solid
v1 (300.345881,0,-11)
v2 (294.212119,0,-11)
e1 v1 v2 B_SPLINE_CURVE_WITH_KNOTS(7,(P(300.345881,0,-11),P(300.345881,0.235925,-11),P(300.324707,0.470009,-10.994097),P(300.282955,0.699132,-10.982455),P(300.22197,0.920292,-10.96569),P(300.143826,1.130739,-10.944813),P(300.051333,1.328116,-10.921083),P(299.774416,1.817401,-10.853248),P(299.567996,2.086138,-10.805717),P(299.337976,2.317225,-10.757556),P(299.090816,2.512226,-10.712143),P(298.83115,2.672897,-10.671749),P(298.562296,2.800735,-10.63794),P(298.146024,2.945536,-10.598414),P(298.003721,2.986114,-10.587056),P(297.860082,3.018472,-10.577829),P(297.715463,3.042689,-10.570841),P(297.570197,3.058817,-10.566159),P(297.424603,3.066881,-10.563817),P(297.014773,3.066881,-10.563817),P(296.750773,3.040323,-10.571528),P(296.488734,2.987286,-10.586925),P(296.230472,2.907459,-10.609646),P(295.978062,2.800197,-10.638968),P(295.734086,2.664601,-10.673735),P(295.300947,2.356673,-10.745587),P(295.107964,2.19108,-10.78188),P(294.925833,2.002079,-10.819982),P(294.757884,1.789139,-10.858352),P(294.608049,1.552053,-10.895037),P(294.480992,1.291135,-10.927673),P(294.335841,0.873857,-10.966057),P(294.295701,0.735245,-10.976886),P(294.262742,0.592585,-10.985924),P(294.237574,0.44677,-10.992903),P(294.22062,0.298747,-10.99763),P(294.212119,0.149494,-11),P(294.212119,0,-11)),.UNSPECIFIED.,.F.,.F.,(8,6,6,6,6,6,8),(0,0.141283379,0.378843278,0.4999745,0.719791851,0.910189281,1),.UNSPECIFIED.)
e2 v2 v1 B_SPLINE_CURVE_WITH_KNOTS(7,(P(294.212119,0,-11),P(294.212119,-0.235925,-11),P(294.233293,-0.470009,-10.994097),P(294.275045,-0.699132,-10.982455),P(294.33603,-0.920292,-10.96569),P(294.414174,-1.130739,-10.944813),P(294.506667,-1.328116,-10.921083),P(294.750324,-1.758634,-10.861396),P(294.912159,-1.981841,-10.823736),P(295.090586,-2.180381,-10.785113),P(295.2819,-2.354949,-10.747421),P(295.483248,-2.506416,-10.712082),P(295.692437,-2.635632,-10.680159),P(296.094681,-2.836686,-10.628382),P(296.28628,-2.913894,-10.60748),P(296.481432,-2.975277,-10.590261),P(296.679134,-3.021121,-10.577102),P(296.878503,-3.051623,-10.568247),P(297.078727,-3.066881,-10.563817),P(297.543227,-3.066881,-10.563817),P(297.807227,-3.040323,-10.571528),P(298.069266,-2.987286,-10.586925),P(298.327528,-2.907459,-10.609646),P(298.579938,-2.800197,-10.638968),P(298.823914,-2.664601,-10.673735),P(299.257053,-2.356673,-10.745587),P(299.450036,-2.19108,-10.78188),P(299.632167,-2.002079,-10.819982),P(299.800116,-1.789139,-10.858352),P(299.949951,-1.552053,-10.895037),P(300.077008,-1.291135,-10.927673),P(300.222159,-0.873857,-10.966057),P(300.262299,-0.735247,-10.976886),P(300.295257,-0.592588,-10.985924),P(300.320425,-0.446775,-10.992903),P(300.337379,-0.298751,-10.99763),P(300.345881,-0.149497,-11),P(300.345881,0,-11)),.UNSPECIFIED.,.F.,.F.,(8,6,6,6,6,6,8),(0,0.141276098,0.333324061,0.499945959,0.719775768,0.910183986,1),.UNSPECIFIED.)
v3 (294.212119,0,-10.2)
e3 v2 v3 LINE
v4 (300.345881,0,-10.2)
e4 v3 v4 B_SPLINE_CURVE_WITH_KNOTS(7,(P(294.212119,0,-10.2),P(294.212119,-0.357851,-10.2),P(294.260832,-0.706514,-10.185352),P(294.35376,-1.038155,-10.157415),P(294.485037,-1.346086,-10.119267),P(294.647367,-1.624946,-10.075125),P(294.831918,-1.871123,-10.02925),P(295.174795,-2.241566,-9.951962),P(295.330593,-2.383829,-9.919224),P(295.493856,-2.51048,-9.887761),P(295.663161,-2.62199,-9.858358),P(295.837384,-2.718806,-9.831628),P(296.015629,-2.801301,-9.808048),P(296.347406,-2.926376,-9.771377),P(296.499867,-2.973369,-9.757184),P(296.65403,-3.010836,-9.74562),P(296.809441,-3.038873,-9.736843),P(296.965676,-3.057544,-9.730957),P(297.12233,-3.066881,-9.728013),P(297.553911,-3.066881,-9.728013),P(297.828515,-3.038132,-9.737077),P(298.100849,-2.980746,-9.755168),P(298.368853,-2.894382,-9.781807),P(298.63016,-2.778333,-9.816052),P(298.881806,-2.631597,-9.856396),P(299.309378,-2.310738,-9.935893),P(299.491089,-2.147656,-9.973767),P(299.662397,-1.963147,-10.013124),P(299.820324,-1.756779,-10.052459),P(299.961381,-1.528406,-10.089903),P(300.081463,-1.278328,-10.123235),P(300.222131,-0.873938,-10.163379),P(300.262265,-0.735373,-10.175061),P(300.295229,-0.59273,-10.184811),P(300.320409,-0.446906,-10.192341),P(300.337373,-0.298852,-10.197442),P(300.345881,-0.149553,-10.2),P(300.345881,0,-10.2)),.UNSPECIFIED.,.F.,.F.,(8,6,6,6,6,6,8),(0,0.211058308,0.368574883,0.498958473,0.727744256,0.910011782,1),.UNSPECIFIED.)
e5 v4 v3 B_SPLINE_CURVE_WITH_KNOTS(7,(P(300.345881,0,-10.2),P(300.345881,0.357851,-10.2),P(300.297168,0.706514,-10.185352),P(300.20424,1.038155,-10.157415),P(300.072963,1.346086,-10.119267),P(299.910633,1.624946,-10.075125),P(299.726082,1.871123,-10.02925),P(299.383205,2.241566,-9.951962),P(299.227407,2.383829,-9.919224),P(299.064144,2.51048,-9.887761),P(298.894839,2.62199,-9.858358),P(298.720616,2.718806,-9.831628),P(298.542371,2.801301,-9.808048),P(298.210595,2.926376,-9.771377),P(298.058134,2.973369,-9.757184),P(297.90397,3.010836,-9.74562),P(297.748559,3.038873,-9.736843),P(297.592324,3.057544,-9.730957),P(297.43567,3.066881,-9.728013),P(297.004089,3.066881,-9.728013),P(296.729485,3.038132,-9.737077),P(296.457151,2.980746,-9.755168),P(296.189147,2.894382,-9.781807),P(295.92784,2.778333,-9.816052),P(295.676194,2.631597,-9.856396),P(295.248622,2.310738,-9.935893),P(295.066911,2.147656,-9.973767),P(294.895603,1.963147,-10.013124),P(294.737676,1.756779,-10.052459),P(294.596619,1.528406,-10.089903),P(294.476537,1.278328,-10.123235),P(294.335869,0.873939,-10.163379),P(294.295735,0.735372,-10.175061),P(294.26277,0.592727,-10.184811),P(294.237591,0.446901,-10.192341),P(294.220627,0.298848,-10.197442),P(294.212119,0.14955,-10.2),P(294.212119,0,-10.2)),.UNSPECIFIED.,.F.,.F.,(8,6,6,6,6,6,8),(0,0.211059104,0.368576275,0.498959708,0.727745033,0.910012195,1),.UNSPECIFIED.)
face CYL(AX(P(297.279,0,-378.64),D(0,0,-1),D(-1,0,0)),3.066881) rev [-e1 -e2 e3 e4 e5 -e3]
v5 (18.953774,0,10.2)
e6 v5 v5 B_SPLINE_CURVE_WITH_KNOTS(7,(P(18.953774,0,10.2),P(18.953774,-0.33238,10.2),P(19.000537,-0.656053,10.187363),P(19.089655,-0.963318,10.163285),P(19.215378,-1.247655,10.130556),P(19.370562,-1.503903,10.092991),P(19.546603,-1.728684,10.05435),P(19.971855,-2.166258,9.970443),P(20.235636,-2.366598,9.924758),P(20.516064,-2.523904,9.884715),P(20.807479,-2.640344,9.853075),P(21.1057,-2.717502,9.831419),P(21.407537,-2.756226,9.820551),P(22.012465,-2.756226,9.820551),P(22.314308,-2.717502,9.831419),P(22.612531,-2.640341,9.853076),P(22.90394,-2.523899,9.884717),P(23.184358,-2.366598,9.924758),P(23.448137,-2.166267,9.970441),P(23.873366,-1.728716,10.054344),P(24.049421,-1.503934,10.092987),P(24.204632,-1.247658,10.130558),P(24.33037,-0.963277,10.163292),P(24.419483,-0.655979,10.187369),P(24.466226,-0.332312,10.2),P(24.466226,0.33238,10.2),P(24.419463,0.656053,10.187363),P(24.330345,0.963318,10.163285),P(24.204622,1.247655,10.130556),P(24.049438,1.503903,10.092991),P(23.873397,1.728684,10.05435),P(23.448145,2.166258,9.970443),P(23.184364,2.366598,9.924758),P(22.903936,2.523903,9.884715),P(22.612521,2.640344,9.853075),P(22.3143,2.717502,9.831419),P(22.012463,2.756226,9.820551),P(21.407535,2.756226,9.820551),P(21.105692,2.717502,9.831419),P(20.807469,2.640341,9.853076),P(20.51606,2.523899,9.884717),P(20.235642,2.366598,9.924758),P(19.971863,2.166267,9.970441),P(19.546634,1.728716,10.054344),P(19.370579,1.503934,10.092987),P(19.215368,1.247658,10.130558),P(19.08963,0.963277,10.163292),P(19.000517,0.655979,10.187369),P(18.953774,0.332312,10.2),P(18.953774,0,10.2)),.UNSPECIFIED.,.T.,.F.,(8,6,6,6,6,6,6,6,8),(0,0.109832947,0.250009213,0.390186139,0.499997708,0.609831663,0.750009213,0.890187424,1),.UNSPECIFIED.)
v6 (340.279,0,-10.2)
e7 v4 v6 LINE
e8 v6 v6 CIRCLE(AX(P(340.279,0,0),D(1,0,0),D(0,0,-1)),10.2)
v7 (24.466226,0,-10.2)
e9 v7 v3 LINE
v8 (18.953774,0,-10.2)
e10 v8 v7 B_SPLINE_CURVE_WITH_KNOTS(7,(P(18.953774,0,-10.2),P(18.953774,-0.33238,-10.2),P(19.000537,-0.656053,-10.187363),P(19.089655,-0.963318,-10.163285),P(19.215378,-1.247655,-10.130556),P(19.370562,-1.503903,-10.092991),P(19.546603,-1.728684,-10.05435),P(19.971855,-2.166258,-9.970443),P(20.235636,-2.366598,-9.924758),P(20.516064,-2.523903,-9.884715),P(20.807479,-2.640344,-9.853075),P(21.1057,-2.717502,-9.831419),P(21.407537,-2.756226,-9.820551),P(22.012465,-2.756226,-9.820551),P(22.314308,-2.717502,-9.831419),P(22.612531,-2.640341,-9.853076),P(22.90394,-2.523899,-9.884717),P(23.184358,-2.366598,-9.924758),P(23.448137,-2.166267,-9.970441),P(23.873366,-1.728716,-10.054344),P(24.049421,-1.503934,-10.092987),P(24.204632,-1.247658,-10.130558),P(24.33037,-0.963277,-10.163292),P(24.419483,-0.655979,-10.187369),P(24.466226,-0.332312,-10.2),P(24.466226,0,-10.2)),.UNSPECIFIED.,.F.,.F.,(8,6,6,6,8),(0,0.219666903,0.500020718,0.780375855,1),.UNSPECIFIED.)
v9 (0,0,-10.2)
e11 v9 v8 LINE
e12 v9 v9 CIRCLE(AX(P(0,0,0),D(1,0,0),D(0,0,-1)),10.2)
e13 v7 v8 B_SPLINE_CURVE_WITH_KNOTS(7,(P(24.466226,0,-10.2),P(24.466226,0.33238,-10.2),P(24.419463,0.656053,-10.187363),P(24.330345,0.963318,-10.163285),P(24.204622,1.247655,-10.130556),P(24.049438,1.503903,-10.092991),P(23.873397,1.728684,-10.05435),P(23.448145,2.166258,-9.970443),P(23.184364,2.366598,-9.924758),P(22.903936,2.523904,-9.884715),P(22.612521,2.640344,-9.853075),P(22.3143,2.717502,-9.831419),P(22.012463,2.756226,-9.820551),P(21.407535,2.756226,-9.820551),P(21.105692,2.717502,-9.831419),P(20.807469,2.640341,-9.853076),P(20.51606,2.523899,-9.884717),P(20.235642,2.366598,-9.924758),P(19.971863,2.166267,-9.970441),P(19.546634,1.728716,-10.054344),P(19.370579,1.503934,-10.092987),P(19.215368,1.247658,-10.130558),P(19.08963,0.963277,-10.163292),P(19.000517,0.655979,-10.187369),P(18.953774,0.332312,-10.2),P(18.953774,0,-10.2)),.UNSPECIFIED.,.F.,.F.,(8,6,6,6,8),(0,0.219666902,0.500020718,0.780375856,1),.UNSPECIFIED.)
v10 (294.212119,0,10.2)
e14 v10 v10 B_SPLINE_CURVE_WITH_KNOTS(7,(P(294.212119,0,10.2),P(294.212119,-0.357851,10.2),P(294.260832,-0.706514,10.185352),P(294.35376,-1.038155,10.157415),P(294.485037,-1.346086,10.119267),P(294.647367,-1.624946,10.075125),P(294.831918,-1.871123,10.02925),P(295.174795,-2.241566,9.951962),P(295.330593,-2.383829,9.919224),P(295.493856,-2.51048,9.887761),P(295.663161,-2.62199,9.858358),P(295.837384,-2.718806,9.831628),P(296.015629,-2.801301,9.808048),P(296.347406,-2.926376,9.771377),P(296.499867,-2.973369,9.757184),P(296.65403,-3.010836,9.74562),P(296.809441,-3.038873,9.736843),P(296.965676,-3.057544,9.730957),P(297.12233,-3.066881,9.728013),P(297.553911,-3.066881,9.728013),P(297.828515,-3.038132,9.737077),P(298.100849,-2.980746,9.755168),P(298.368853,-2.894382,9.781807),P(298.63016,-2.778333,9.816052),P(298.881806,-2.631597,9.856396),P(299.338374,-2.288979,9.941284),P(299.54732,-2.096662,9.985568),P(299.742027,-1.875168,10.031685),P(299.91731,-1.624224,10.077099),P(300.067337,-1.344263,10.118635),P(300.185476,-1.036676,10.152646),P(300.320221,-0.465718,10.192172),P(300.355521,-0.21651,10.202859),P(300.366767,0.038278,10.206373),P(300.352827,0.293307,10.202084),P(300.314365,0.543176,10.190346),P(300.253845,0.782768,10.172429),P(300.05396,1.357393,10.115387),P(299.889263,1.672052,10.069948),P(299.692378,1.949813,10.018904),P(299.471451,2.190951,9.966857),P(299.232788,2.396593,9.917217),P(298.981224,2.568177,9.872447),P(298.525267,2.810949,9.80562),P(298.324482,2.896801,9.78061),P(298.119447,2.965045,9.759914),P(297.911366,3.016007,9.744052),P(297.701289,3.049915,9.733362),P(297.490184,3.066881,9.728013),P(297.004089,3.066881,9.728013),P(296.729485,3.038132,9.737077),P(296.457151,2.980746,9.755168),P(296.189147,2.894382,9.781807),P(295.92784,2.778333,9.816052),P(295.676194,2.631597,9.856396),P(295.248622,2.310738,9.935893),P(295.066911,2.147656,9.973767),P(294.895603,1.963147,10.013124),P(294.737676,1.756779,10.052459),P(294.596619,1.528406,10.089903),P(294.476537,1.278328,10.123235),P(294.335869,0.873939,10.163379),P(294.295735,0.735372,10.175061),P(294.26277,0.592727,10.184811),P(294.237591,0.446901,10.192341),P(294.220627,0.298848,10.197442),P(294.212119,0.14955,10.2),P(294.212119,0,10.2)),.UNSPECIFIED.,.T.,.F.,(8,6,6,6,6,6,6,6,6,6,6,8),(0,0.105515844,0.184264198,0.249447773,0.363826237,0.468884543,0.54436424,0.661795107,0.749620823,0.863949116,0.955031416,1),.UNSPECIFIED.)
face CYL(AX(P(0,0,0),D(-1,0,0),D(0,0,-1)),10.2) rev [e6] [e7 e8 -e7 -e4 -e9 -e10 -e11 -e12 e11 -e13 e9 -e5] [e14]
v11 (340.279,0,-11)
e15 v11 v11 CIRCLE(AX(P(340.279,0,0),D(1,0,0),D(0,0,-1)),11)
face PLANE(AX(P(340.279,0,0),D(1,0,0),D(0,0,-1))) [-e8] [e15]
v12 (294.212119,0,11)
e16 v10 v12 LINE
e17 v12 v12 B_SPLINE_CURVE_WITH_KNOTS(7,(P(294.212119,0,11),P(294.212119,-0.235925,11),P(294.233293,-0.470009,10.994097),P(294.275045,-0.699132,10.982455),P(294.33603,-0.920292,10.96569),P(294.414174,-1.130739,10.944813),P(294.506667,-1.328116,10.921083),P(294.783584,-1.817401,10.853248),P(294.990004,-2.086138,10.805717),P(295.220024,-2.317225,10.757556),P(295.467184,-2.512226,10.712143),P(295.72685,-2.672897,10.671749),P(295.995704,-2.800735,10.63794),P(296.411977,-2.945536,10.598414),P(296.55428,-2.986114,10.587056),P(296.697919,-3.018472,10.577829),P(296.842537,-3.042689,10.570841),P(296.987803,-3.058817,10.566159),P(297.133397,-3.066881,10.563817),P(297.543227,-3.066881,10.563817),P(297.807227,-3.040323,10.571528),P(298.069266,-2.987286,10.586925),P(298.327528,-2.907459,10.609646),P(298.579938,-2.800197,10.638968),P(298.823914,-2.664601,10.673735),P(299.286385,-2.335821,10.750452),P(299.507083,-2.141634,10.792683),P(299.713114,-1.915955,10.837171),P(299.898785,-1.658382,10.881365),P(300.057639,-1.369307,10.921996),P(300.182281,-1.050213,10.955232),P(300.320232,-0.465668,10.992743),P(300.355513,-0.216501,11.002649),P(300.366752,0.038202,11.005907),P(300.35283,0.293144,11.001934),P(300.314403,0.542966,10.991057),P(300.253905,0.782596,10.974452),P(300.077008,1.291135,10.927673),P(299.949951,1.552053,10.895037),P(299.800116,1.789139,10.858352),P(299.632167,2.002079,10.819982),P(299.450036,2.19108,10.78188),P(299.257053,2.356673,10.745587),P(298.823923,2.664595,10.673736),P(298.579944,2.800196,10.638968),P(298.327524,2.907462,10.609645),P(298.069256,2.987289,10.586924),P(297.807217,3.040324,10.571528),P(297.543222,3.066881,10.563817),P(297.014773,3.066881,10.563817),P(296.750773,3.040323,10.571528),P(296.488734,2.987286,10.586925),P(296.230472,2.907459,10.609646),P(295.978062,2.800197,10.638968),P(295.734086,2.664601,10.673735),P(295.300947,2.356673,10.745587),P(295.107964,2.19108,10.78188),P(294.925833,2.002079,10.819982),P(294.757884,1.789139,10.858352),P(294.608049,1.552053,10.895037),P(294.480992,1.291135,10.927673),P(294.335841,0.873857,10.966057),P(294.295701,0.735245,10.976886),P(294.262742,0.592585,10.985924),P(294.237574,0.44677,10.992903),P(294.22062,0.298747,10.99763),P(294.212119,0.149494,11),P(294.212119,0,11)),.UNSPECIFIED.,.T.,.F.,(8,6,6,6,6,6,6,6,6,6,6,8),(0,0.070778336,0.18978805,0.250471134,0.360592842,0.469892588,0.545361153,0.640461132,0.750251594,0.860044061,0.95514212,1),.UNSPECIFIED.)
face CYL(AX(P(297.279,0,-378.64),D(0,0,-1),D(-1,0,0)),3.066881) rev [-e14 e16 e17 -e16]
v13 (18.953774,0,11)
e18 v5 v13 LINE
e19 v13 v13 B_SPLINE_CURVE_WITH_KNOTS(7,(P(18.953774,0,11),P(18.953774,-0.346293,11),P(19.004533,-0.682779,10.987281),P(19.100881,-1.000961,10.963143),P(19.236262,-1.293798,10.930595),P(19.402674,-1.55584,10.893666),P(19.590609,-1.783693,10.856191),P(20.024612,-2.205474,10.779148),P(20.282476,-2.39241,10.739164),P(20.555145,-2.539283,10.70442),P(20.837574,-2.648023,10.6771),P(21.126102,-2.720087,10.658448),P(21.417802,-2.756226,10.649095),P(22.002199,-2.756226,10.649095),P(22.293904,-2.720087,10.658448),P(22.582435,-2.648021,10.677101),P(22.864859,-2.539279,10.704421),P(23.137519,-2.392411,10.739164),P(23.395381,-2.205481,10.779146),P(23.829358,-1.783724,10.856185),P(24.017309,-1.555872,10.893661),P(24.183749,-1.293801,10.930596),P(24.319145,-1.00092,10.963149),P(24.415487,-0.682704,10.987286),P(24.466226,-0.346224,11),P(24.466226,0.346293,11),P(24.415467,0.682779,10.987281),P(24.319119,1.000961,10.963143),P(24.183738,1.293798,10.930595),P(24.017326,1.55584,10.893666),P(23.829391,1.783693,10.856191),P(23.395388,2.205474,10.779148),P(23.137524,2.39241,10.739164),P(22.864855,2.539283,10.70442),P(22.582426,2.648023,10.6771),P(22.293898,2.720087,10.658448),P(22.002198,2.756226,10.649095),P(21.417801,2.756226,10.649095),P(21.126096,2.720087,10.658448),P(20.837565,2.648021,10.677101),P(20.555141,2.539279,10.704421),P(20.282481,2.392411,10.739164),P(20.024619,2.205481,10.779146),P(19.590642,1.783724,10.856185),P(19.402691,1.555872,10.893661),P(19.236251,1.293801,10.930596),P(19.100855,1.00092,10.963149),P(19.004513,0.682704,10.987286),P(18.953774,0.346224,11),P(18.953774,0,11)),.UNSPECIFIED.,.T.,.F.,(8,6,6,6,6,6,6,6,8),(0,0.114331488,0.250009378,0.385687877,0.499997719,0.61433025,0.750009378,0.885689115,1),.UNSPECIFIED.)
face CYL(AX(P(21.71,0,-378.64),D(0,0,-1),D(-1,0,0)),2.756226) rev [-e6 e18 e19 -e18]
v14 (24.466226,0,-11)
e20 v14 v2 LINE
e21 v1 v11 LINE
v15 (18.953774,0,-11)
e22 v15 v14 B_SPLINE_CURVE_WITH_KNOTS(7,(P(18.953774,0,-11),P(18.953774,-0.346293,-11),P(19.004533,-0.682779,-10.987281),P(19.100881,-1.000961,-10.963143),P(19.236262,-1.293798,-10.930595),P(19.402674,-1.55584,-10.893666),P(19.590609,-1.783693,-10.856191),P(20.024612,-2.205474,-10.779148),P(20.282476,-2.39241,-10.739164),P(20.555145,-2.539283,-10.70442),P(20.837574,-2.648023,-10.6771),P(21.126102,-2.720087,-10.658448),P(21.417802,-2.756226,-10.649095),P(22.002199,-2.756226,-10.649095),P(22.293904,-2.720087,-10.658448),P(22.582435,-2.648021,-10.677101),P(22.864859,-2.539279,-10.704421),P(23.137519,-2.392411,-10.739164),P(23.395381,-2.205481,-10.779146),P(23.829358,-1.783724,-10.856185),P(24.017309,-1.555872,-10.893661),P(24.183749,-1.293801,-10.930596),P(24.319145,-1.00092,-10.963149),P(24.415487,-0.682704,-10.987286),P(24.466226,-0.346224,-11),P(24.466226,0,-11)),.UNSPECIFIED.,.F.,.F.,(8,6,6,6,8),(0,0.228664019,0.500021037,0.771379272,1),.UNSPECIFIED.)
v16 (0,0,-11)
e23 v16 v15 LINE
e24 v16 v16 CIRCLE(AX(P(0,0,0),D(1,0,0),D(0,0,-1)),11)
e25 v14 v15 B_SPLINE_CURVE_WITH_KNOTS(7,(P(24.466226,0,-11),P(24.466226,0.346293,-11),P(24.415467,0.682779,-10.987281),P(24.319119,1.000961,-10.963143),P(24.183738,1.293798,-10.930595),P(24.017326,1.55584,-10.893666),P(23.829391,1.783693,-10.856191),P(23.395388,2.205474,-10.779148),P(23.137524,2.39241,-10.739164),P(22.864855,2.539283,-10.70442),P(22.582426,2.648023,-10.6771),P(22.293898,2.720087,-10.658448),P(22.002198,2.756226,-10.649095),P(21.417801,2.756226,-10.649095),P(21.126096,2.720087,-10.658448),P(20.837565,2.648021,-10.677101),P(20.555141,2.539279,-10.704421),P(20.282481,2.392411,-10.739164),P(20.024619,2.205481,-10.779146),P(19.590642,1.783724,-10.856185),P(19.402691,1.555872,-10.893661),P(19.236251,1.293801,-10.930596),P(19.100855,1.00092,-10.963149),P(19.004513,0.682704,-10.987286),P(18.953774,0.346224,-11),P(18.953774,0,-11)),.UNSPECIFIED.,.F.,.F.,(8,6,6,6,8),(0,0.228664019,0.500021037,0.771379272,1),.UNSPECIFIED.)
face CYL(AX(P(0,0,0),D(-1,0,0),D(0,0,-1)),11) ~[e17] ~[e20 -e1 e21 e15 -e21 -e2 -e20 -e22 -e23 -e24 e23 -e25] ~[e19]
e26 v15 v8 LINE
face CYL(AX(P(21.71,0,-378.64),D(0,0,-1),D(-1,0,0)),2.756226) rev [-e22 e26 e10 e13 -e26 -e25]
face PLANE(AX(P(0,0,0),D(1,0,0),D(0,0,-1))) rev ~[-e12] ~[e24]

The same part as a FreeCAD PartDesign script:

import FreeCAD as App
import Part
import Sketcher

doc = App.newDocument("Part")
params = doc.addObject("Spreadsheet::Sheet", "Params")
for row, (alias, value) in enumerate([
    ("sketch1_diameter", "22 mm"),
    ("sketch1_diameter2", "20.4 mm"),
    ("pad1_length", "340.279 mm"),
], start=1):
    params.set(f"A{row}", alias)
    params.set(f"B{row}", "=" + value)
    params.setAlias(f"B{row}", alias)

body = doc.addObject("PartDesign::Body", "Body")

sketch1 = body.newObject("Sketcher::SketchObject", "Sketch")
sketch1.AttachmentSupport = (doc.getObject("YZ_Plane"), [""])
sketch1.MapMode = "FlatFace"
sketch1.addGeometry([
    Part.Circle(App.Vector(0, 0, 0), App.Vector(0, 0, 1), 11),
    Part.Circle(App.Vector(0, 0, 0), App.Vector(0, 0, 1), 10),
], False)
sketch1.addConstraint([
    Sketcher.Constraint("Coincident", 0, 3, -1, 1),
    Sketcher.Constraint("Coincident", 1, 3, -1, 1),
    Sketcher.Constraint("Diameter", 0, 22.0),
    Sketcher.Constraint("Diameter", 1, 20.4),
])
sketch1.setExpression("Constraints[2]", "Params.sketch1_diameter")
sketch1.setExpression("Constraints[3]", "Params.sketch1_diameter2")
pad1 = body.newObject("PartDesign::Pad", "Pad")
pad1.Profile = sketch1
pad1.setExpression("Length", "Params.pad1_length")

sketch2 = body.newObject("Sketcher::SketchObject", "Sketch001")
sketch2.AttachmentSupport = (doc.getObject("XY_Plane"), [""])
sketch2.MapMode = "FlatFace"
sketch2.addGeometry([
    Part.Circle(App.Vector(21.7, 0, 0), App.Vector(0, 0, 1), 2.8),
    Part.Circle(App.Vector(297.3, 0, 0), App.Vector(0, 0, 1), 3.1),
], False)
sketch2.addConstraint([
    Sketcher.Constraint("PointOnObject", 0, 3, -1),
    Sketcher.Constraint("PointOnObject", 1, 3, -1),
    Sketcher.Constraint("Diameter", 0, 5.512452),
    Sketcher.Constraint("DistanceX", -1, 1, 0, 3, 21.71),
    Sketcher.Constraint("Diameter", 1, 6.133763),
    Sketcher.Constraint("DistanceX", -1, 1, 1, 3, 297.279),
])
pocket1 = body.newObject("PartDesign::Pocket", "Pocket")
pocket1.Profile = sketch2
pocket1.Type = "ThroughAll"
pocket1.Midplane = True

doc.recompute()
